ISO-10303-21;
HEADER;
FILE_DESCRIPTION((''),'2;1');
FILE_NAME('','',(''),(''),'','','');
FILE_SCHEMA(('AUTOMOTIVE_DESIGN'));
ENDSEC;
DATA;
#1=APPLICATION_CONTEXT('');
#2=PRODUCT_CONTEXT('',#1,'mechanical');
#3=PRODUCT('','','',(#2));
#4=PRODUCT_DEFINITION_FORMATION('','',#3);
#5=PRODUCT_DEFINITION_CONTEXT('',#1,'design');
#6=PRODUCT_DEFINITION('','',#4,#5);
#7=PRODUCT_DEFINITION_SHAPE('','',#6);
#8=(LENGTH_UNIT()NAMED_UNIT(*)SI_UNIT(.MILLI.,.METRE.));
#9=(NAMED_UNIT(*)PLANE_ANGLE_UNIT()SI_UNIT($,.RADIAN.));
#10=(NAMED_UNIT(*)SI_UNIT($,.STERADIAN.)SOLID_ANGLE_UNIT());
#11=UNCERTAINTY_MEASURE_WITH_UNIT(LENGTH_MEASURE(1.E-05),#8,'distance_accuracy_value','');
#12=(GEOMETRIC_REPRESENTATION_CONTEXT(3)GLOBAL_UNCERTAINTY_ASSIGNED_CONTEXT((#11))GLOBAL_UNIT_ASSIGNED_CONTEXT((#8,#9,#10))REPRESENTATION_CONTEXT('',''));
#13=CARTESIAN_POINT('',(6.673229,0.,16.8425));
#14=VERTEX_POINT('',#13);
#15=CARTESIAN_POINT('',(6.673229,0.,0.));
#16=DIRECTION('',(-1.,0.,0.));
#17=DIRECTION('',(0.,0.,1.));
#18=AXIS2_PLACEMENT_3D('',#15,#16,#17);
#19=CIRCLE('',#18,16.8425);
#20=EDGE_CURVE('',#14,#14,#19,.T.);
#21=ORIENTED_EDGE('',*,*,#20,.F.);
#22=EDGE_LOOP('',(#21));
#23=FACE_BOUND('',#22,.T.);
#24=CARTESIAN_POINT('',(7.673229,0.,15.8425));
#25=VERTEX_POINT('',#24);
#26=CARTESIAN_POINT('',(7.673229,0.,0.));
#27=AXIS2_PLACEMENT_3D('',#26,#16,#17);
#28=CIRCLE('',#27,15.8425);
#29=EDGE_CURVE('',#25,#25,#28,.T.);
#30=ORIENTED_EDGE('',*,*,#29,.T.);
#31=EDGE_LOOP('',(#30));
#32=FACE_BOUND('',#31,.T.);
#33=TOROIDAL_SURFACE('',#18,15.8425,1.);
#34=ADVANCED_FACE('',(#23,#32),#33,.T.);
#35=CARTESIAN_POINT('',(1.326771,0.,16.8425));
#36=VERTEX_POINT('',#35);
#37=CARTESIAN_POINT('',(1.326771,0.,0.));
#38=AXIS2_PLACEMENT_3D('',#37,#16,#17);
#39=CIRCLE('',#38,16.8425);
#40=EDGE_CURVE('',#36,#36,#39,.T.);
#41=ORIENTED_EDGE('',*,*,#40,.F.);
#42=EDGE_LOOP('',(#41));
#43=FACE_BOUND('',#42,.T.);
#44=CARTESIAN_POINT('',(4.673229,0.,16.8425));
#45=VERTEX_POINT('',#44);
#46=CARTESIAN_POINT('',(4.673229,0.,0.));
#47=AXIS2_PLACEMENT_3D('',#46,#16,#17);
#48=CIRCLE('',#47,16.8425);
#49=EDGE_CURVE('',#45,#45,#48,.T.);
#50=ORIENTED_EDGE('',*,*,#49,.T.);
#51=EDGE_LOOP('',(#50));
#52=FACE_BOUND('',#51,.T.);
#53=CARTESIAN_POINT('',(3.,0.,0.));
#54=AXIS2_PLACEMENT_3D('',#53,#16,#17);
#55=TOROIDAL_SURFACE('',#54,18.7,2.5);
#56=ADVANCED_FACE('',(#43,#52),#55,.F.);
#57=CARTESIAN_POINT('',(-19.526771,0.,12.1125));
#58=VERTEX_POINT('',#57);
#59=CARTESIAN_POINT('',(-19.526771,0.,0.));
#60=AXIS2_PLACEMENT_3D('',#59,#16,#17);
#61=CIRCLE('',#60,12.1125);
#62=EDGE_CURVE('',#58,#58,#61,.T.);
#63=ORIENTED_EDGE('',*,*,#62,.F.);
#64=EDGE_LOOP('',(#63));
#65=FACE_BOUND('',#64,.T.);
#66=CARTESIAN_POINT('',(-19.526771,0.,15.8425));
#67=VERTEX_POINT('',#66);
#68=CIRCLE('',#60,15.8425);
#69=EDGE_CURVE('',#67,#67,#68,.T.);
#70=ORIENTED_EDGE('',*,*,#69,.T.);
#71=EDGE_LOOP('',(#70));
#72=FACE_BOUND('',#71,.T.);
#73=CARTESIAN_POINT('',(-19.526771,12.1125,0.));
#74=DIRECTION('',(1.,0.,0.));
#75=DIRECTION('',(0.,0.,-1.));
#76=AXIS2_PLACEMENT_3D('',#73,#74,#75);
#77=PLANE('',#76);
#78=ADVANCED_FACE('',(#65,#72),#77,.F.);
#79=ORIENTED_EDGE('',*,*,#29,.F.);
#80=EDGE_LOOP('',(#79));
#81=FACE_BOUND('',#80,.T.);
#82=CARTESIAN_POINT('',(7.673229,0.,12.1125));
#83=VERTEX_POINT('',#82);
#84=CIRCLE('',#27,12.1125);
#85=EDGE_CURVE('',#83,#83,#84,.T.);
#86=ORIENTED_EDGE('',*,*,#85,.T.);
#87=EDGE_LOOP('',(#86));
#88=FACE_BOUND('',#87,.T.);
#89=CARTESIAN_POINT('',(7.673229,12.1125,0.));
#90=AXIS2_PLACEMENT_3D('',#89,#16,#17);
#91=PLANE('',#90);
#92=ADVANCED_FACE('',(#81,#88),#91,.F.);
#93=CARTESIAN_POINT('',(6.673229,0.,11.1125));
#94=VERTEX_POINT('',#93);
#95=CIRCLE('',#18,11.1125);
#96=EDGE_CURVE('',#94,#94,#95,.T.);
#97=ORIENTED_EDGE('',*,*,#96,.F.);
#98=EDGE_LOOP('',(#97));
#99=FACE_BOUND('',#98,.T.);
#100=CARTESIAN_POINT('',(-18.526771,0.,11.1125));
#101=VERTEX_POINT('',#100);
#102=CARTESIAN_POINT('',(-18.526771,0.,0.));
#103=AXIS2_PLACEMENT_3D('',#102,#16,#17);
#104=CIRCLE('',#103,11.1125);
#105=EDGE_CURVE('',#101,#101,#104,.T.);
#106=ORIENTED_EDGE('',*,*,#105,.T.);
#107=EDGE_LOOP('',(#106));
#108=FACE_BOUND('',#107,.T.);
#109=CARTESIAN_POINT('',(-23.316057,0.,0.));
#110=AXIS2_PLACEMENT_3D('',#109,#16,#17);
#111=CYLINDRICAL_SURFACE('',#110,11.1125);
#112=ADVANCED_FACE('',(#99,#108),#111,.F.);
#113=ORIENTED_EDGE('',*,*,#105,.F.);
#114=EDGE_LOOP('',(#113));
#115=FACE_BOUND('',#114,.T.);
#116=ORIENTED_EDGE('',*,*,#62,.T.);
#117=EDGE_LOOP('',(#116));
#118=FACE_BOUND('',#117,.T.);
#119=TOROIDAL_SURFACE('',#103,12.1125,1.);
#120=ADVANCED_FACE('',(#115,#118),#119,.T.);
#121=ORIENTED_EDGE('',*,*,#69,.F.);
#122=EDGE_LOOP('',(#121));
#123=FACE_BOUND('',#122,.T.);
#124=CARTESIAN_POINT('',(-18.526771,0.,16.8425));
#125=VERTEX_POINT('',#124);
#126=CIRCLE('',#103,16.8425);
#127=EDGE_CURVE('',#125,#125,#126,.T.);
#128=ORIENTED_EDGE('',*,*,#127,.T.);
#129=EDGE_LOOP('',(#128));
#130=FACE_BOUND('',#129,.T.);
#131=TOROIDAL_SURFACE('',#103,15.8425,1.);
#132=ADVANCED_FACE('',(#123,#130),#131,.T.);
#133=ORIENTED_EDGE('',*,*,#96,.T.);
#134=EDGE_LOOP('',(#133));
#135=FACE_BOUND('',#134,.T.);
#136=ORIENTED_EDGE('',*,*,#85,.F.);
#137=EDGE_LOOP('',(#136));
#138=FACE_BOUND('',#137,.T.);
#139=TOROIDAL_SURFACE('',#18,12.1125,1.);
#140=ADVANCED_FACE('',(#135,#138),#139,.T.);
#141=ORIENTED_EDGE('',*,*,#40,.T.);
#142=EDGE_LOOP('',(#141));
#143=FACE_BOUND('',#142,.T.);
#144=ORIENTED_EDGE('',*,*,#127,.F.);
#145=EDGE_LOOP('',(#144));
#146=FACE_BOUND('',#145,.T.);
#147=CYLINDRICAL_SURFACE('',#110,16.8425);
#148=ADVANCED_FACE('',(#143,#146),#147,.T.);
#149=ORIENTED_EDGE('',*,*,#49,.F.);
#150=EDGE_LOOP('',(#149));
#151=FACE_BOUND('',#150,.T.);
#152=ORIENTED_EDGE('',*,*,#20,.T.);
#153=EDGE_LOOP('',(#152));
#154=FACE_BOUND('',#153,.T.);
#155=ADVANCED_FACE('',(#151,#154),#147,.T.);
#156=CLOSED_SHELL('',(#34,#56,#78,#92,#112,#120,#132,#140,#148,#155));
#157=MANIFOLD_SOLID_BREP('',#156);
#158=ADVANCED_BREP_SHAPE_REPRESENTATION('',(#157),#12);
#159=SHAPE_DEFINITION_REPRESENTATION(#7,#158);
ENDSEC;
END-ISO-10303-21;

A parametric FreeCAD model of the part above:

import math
import FreeCAD as App
import Part
import Sketcher

V = App.Vector
Q = App.Units.Quantity

doc = App.newDocument("Part")
body = doc.addObject("PartDesign::Body", "Body")

sketch1 = doc.addObject("Sketcher::SketchObject", "Sketch")
body.addObject(sketch1)
sketch1.AttachmentSupport = (doc.XY_Plane, [""])
sketch1.MapMode = "FlatFace"
sketch1.addGeometry(Part.LineSegment(V(-18.5, 11.1, 0), V(6.7, 11.1, 0)), False)
sketch1.addGeometry(Part.ArcOfCircle(Part.Circle(V(6.7, 12.1, 0), V(0, 0, 1), 1), math.radians(-90), math.radians(0)), False)
sketch1.addGeometry(Part.LineSegment(V(7.7, 12.1, 0), V(7.7, 15.8, 0)), False)
sketch1.addGeometry(Part.ArcOfCircle(Part.Circle(V(6.7, 15.8, 0), V(0, 0, 1), 1), math.radians(0), math.radians(90)), False)
sketch1.addGeometry(Part.LineSegment(V(6.7, 16.8, 0), V(4.7, 16.8, 0)), False)
sketch1.addGeometry(Part.ArcOfCircle(Part.Circle(V(3, 18.7, 0), V(0, 0, 1), 2.5), math.radians(-132), math.radians(-48)), False)
sketch1.addGeometry(Part.LineSegment(V(1.3, 16.8, 0), V(-18.5, 16.8, 0)), False)
sketch1.addGeometry(Part.ArcOfCircle(Part.Circle(V(-18.5, 15.8, 0), V(0, 0, 1), 1), math.radians(90), math.radians(180)), False)
sketch1.addGeometry(Part.LineSegment(V(-19.5, 15.8, 0), V(-19.5, 12.1, 0)), False)
sketch1.addGeometry(Part.ArcOfCircle(Part.Circle(V(-18.5, 12.1, 0), V(0, 0, 1), 1), math.radians(-180), math.radians(-90)), False)
sketch1.addConstraint(Sketcher.Constraint("Tangent", 0, 2, 1, 1))
sketch1.addConstraint(Sketcher.Constraint("Tangent", 1, 2, 2, 1))
sketch1.addConstraint(Sketcher.Constraint("Tangent", 2, 2, 3, 1))
sketch1.addConstraint(Sketcher.Constraint("Tangent", 3, 2, 4, 1))
sketch1.addConstraint(Sketcher.Constraint("Coincident", 4, 2, 5, 2))
sketch1.addConstraint(Sketcher.Constraint("Coincident", 5, 1, 6, 1))
sketch1.addConstraint(Sketcher.Constraint("Tangent", 6, 2, 7, 1))
sketch1.addConstraint(Sketcher.Constraint("Tangent", 7, 2, 8, 1))
sketch1.addConstraint(Sketcher.Constraint("Tangent", 8, 2, 9, 1))
sketch1.addConstraint(Sketcher.Constraint("Tangent", 9, 2, 0, 1))
sketch1.addConstraint(Sketcher.Constraint("Horizontal", 0))
sketch1.addConstraint(Sketcher.Constraint("Vertical", 2))
sketch1.addConstraint(Sketcher.Constraint("Horizontal", 4))
sketch1.addConstraint(Sketcher.Constraint("Horizontal", 6))
sketch1.addConstraint(Sketcher.Constraint("Vertical", 8))
sketch1.addConstraint(Sketcher.Constraint("Equal", 1, 3))
sketch1.addConstraint(Sketcher.Constraint("Equal", 3, 7))
sketch1.addConstraint(Sketcher.Constraint("Equal", 7, 9))
sketch1.addConstraint(Sketcher.Constraint("Horizontal", 3, 3, 7, 3))
sketch1.addConstraint(Sketcher.Constraint("Radius", 1, Q("1 mm")))
sketch1.addConstraint(Sketcher.Constraint("Radius", 5, Q("2.5 mm")))
sketch1.addConstraint(Sketcher.Constraint("DistanceX", 4, 2, 4, 1, Q("2 mm")))
sketch1.addConstraint(Sketcher.Constraint("DistanceX", 0, 1, 0, 2, Q("25.2 mm")))
sketch1.addConstraint(Sketcher.Constraint("DistanceX", -1, 1, 5, 3, Q("3 mm")))
sketch1.addConstraint(Sketcher.Constraint("DistanceY", 2, 1, 2, 2, Q("3.73 mm")))
sketch1.addConstraint(Sketcher.Constraint("DistanceY", -1, 1, 5, 3, Q("18.7 mm")))
sketch1.addConstraint(Sketcher.Constraint("DistanceY", -1, 1, 1, 3, Q("12.1125 mm")))
revolution = doc.addObject("PartDesign::Revolution", "Revolution")
body.addObject(revolution)
revolution.Profile = sketch1
revolution.ReferenceAxis = (sketch1, ["H_Axis"])
revolution.Angle = 360

doc.recompute()
